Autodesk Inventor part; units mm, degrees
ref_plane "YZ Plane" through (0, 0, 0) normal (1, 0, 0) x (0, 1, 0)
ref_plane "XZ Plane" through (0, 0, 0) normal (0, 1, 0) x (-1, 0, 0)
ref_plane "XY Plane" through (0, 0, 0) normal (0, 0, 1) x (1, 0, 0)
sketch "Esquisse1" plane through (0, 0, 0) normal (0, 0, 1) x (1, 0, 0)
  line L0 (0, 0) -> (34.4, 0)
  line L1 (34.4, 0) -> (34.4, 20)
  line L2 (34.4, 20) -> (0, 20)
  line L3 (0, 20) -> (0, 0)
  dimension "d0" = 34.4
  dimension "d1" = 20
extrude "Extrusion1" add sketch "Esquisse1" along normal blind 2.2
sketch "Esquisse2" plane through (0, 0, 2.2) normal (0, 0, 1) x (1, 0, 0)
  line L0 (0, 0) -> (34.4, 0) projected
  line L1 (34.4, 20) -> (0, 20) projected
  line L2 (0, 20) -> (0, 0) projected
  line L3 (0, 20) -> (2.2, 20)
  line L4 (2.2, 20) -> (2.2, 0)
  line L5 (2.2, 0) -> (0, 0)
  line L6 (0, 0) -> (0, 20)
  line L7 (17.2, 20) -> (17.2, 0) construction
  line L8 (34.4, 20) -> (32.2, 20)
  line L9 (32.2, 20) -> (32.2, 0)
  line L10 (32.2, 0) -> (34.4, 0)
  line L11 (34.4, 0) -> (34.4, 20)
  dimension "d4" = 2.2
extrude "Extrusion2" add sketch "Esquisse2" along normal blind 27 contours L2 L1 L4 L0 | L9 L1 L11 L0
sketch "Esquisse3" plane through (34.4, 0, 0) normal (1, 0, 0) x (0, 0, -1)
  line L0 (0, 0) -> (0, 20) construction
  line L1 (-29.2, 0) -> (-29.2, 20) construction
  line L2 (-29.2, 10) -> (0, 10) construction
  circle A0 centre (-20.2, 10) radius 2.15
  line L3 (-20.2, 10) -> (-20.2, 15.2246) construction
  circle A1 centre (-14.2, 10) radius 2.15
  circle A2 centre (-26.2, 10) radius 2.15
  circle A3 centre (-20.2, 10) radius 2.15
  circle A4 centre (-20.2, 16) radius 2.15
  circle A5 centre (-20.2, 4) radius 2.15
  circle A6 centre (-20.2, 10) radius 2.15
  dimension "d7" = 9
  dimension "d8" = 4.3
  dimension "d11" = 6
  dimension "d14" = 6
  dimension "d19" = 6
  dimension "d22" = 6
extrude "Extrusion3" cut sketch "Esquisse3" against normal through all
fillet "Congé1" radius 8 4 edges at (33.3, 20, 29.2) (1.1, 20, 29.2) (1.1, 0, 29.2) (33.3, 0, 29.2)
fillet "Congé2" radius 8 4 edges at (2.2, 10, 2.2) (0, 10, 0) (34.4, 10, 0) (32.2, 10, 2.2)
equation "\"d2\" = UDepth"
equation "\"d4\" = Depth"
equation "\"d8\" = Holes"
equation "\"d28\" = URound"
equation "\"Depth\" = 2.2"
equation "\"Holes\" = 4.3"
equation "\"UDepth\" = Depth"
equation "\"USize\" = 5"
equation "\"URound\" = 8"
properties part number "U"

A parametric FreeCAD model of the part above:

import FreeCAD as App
import Part
import Sketcher

V = App.Vector


def edges_at(feature, points):
    """Names of the edges that pass closest to the given points."""
    edges = feature.Shape.Edges
    near = lambda p: min(range(len(edges)), key=lambda i: edges[i].distToShape(Part.Vertex(*p))[0])
    return sorted({f"Edge{near(p) + 1}" for p in points})

doc = App.newDocument("Part")
body = doc.addObject("PartDesign::Body", "Body")

sketch1 = doc.addObject("Sketcher::SketchObject", "Sketch")
body.addObject(sketch1)
sketch1.AttachmentSupport = (doc.XY_Plane, [""])
sketch1.MapMode = "FlatFace"
sketch1.addGeometry([
    Part.LineSegment(V(0, 20, 0), V(0, 0, 0)),
    Part.LineSegment(V(0, 0, 0), V(34, 0, 0)),
    Part.LineSegment(V(34, 0, 0), V(34, 20, 0)),
    Part.LineSegment(V(34, 20, 0), V(0, 20, 0)),
], False)
sketch1.addConstraint([
    Sketcher.Constraint("Coincident", 0, 2, 1, 1),
    Sketcher.Constraint("Coincident", 1, 2, 2, 1),
    Sketcher.Constraint("Coincident", 2, 2, 3, 1),
    Sketcher.Constraint("Coincident", 3, 2, 0, 1),
    Sketcher.Constraint("Vertical", 0),
    Sketcher.Constraint("Horizontal", 1),
    Sketcher.Constraint("Vertical", 2),
    Sketcher.Constraint("Horizontal", 3),
    Sketcher.Constraint("Coincident", 0, 2, -1, 1),
    Sketcher.Constraint("DistanceY", 0, 2, 0, 1, 20.0),
    Sketcher.Constraint("DistanceX", 1, 1, 1, 2, 34.4),
])
pad1 = doc.addObject("PartDesign::Pad", "Pad")
body.addObject(pad1)
pad1.Profile = sketch1
pad1.Length = 2.2

sketch2 = doc.addObject("Sketcher::SketchObject", "Sketch001")
body.addObject(sketch2)
sketch2.AttachmentSupport = (doc.XY_Plane, [""])
sketch2.MapMode = "FlatFace"
sketch2.AttachmentOffset = App.Placement(V(0, 0, 2.2), App.Rotation())
sketch2.addGeometry([
    Part.LineSegment(V(0, 20, 0), V(0, 0, 0)),
    Part.LineSegment(V(0, 0, 0), V(2.2, 0, 0)),
    Part.LineSegment(V(2.2, 0, 0), V(2.2, 20, 0)),
    Part.LineSegment(V(2.2, 20, 0), V(0, 20, 0)),
    Part.LineSegment(V(32.2, 20, 0), V(32.2, 0, 0)),
    Part.LineSegment(V(32.2, 0, 0), V(34.4, 0, 0)),
    Part.LineSegment(V(34.4, 0, 0), V(34.4, 20, 0)),
    Part.LineSegment(V(34.4, 20, 0), V(32.2, 20, 0)),
], False)
sketch2.addConstraint([
    Sketcher.Constraint("Coincident", 0, 2, 1, 1),
    Sketcher.Constraint("Coincident", 1, 2, 2, 1),
    Sketcher.Constraint("Coincident", 2, 2, 3, 1),
    Sketcher.Constraint("Coincident", 3, 2, 0, 1),
    Sketcher.Constraint("Coincident", 4, 2, 5, 1),
    Sketcher.Constraint("Coincident", 5, 2, 6, 1),
    Sketcher.Constraint("Coincident", 6, 2, 7, 1),
    Sketcher.Constraint("Coincident", 7, 2, 4, 1),
    Sketcher.Constraint("Vertical", 0),
    Sketcher.Constraint("Horizontal", 1),
    Sketcher.Constraint("Vertical", 2),
    Sketcher.Constraint("Horizontal", 3),
    Sketcher.Constraint("Vertical", 4),
    Sketcher.Constraint("Horizontal", 5),
    Sketcher.Constraint("Vertical", 6),
    Sketcher.Constraint("Horizontal", 7),
    Sketcher.Constraint("Coincident", 0, 2, -1, 1),
    Sketcher.Constraint("PointOnObject", 4, 2, -1),
    Sketcher.Constraint("Horizontal", 3, 2, 6, 2),
    Sketcher.Constraint("Equal", 3, 5),
    Sketcher.Constraint("DistanceX", 1, 1, 1, 2, 2.2),
    Sketcher.Constraint("DistanceY", 0, 2, 0, 1, 20.0),
    Sketcher.Constraint("DistanceX", 1, 2, 4, 2, 30.0),
])
pad2 = doc.addObject("PartDesign::Pad", "Pad001")
body.addObject(pad2)
pad2.Profile = sketch2
pad2.Length = 27

sketch3 = doc.addObject("Sketcher::SketchObject", "Sketch002")
body.addObject(sketch3)
sketch3.AttachmentSupport = (doc.YZ_Plane, [""])
sketch3.MapMode = "FlatFace"
sketch3.AttachmentOffset = App.Placement(V(0, 0, 34.4), App.Rotation())
sketch3.addGeometry([
    Part.Circle(V(10, 20.2, 0), V(0, 0, 1), 2.1),
    Part.Circle(V(10, 14.2, 0), V(0, 0, 1), 2.1),
    Part.Circle(V(10, 26.2, 0), V(0, 0, 1), 2.1),
    Part.Circle(V(16, 20.2, 0), V(0, 0, 1), 2.1),
    Part.Circle(V(4, 20.2, 0), V(0, 0, 1), 2.1),
], False)
sketch3.addConstraint([
    Sketcher.Constraint("Equal", 0, 1),
    Sketcher.Constraint("Equal", 1, 2),
    Sketcher.Constraint("Equal", 2, 3),
    Sketcher.Constraint("Equal", 3, 4),
    Sketcher.Constraint("Horizontal", 0, 3, 3, 3),
    Sketcher.Constraint("Horizontal", 3, 3, 4, 3),
    Sketcher.Constraint("Vertical", 0, 3, 1, 3),
    Sketcher.Constraint("Vertical", 1, 3, 2, 3),
    Sketcher.Constraint("Diameter", 0, 4.3),
    Sketcher.Constraint("DistanceY", 1, 3, 0, 3, 6.0),
    Sketcher.Constraint("DistanceY", 0, 3, 2, 3, 6.0),
    Sketcher.Constraint("DistanceX", 0, 3, 3, 3, 6.0),
    Sketcher.Constraint("DistanceX", 4, 3, 0, 3, 6.0),
    Sketcher.Constraint("DistanceX", -1, 1, 0, 3, 10.0),
    Sketcher.Constraint("DistanceY", -1, 1, 0, 3, 20.2),
])
pocket1 = doc.addObject("PartDesign::Pocket", "Pocket")
body.addObject(pocket1)
pocket1.Profile = sketch3
pocket1.Type = "ThroughAll"
doc.recompute()

fillet = doc.addObject("PartDesign::Fillet", "Fillet")
body.addObject(fillet)
fillet.Base = (pocket1, edges_at(pocket1, [
    (33.3, 20, 29.2),
    (1.1, 20, 29.2),
    (1.1, 0, 29.2),
    (33.3, 0, 29.2),
]))
fillet.Radius = 8
doc.recompute()

fillet2 = doc.addObject("PartDesign::Fillet", "Fillet001")
body.addObject(fillet2)
fillet2.Base = (fillet, edges_at(fillet, [
    (2.2, 10, 2.2),
    (0, 10, 0),
    (34.4, 10, 0),
    (32.2, 10, 2.2),
]))
fillet2.Radius = 8

doc.recompute()
